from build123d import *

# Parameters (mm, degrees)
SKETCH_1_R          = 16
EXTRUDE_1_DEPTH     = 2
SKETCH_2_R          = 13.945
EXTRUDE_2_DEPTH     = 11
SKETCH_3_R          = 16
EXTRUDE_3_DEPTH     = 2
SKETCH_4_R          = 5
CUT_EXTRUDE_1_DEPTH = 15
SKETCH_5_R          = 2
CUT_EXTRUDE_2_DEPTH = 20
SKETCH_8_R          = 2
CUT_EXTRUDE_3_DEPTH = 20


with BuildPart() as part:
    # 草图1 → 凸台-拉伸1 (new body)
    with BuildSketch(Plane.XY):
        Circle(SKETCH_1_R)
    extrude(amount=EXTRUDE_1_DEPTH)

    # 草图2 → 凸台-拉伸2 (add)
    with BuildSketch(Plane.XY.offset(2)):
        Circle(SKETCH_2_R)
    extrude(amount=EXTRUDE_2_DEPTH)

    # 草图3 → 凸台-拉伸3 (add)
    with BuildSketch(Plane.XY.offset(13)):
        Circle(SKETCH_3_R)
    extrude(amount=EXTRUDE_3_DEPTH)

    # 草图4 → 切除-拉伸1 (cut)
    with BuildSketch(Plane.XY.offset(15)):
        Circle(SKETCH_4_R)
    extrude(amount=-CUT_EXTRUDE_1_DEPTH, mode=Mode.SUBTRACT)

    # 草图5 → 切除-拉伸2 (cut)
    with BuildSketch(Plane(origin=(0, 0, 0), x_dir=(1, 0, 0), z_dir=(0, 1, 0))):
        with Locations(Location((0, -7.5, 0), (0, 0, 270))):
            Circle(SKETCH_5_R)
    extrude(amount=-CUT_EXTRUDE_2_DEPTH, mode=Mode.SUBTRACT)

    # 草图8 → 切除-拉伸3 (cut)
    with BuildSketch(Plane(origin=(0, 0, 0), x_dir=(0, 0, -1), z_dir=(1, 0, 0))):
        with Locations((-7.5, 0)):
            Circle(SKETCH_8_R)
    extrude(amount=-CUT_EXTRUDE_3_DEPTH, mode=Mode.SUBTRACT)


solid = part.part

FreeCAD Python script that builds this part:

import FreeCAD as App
import Part
import Sketcher
Q = App.Units.Quantity

doc = App.newDocument("Part")
body = doc.addObject("PartDesign::Body", "Body")

sketch1 = body.newObject("Sketcher::SketchObject", "Sketch")
sketch1.AttachmentSupport = (doc.getObject("XY_Plane"), [""])
sketch1.MapMode = "FlatFace"
sketch1.addGeometry(Part.Circle(App.Vector(0, 0, 0), App.Vector(0, 0, 1), 16), False)
sketch1.addConstraint(Sketcher.Constraint("Coincident", 0, 3, -1, 1))
sketch1.addConstraint(Sketcher.Constraint("Diameter", 0, Q("32 mm")))
pad1 = body.newObject("PartDesign::Pad", "Pad")
pad1.Profile = sketch1
pad1.Length = 2

sketch2 = body.newObject("Sketcher::SketchObject", "Sketch001")
sketch2.AttachmentSupport = (doc.getObject("XY_Plane"), [""])
sketch2.MapMode = "FlatFace"
sketch2.AttachmentOffset = App.Placement(App.Vector(0, 0, 2), App.Rotation())
sketch2.addGeometry(Part.Circle(App.Vector(0, 0, 0), App.Vector(0, 0, 1), 14), False)
sketch2.addConstraint(Sketcher.Constraint("Coincident", 0, 3, -1, 1))
sketch2.addConstraint(Sketcher.Constraint("Diameter", 0, Q("27.89 mm")))
pad2 = body.newObject("PartDesign::Pad", "Pad001")
pad2.Profile = sketch2
pad2.Length = 11

sketch3 = body.newObject("Sketcher::SketchObject", "Sketch002")
sketch3.AttachmentSupport = (doc.getObject("XY_Plane"), [""])
sketch3.MapMode = "FlatFace"
sketch3.AttachmentOffset = App.Placement(App.Vector(0, 0, 13), App.Rotation())
sketch3.addGeometry(Part.Circle(App.Vector(0, 0, 0), App.Vector(0, 0, 1), 16), False)
sketch3.addConstraint(Sketcher.Constraint("Coincident", 0, 3, -1, 1))
sketch3.addConstraint(Sketcher.Constraint("Diameter", 0, Q("32 mm")))
pad3 = body.newObject("PartDesign::Pad", "Pad002")
pad3.Profile = sketch3
pad3.Length = 2

sketch4 = body.newObject("Sketcher::SketchObject", "Sketch003")
sketch4.AttachmentSupport = (doc.getObject("XY_Plane"), [""])
sketch4.MapMode = "FlatFace"
sketch4.AttachmentOffset = App.Placement(App.Vector(0, 0, 15), App.Rotation())
sketch4.addGeometry(Part.Circle(App.Vector(0, 0, 0), App.Vector(0, 0, 1), 5), False)
sketch4.addConstraint(Sketcher.Constraint("Coincident", 0, 3, -1, 1))
sketch4.addConstraint(Sketcher.Constraint("Diameter", 0, Q("10 mm")))
pocket1 = body.newObject("PartDesign::Pocket", "Pocket")
pocket1.Profile = sketch4
pocket1.Length = 15

sketch5 = body.newObject("Sketcher::SketchObject", "Sketch004")
sketch5.AttachmentSupport = (doc.getObject("XZ_Plane"), [""])
sketch5.MapMode = "FlatFace"
sketch5.addGeometry(Part.Circle(App.Vector(0, 7.5, 0), App.Vector(0, 0, 1), 2), False)
sketch5.addConstraint(Sketcher.Constraint("PointOnObject", 0, 3, -2))
sketch5.addConstraint(Sketcher.Constraint("Diameter", 0, Q("4 mm")))
sketch5.addConstraint(Sketcher.Constraint("DistanceY", -1, 1, 0, 3, Q("7.5 mm")))
pocket2 = body.newObject("PartDesign::Pocket", "Pocket001")
pocket2.Profile = sketch5
pocket2.Length = 20
pocket2.Reversed = True

sketch6 = body.newObject("Sketcher::SketchObject", "Sketch005")
sketch6.AttachmentSupport = (doc.getObject("YZ_Plane"), [""])
sketch6.MapMode = "FlatFace"
sketch6.addGeometry(Part.Circle(App.Vector(0, 7.5, 0), App.Vector(0, 0, 1), 2), False)
sketch6.addConstraint(Sketcher.Constraint("PointOnObject", 0, 3, -2))
sketch6.addConstraint(Sketcher.Constraint("Diameter", 0, Q("4 mm")))
sketch6.addConstraint(Sketcher.Constraint("DistanceY", -1, 1, 0, 3, Q("7.5 mm")))
pocket3 = body.newObject("PartDesign::Pocket", "Pocket002")
pocket3.Profile = sketch6
pocket3.Length = 20

doc.recompute()
